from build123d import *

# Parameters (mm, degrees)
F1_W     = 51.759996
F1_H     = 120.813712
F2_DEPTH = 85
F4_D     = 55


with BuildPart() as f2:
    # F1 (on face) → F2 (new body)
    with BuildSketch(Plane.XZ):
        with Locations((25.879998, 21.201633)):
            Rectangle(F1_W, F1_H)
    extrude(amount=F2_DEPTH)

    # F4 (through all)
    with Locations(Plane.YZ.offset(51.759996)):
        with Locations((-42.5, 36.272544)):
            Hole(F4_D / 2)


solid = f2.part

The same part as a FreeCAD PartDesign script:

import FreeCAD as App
import Part
import Sketcher
from FreeCAD import Vector


def add_polygon(sketch, points):
    """Adds a closed chain of lines whose ends are joined by coincident constraints."""
    first, n = sketch.GeometryCount, len(points)
    for a, b in zip(points, points[1:] + points[:1]):
        sketch.addGeometry(Part.LineSegment(App.Vector(*a, 0), App.Vector(*b, 0)), False)
    for i in range(n):
        sketch.addConstraint(Sketcher.Constraint("Coincident", first + i, 2, first + (i + 1) % n, 1))

doc = App.newDocument("Part")
body = doc.addObject("PartDesign::Body", "Body")

# Sketch on XZ plane
sketch1 = body.newObject("Sketcher::SketchObject", "Sketch")
sketch1.AttachmentSupport = (doc.getObject("XZ_Plane"), [""])
sketch1.MapMode = "FlatFace"
add_polygon(sketch1, [(0, 82), (0, -39), (52, -39), (52, 82)])  # lines 0-3
sketch1.addConstraint([
    Sketcher.Constraint("Vertical", 0),
    Sketcher.Constraint("Horizontal", 1),
    Sketcher.Constraint("Vertical", 2),
    Sketcher.Constraint("Horizontal", 3),
    Sketcher.Constraint("PointOnObject", 0, 2, -2),
    Sketcher.Constraint("DistanceX", 1, 1, 1, 2, 51.759996),
    Sketcher.Constraint("DistanceY", 0, 2, 0, 1, 120.813712),
    Sketcher.Constraint("DistanceY", -1, 1, 2, 2, 81.608489),
])
pad1 = body.newObject("PartDesign::Pad", "Pad")
pad1.Profile = sketch1
pad1.Length = 85

# Sketch on YZ plane
sketch2 = body.newObject("Sketcher::SketchObject", "Sketch001")
sketch2.AttachmentSupport = (doc.getObject("YZ_Plane"), [""])
sketch2.MapMode = "FlatFace"
sketch2.AttachmentOffset = App.Placement(Vector(0, 0, 51.759996), App.Rotation())
sketch2.addGeometry(Part.Circle(Vector(-42, 36, 0), Vector(0, 0, 1), 28), False)
sketch2.addConstraint([
    Sketcher.Constraint("Diameter", 0, 55.0),
    Sketcher.Constraint("DistanceX", 0, 3, -1, 1, 42.5),
    Sketcher.Constraint("DistanceY", -1, 1, 0, 3, 36.272544),
])
doc.recompute()
hole = body.newObject("PartDesign::Hole", "Hole")
hole.Profile = sketch2
hole.ThreadType = "None"
hole.Diameter = 55
hole.DepthType = "ThroughAll"

doc.recompute()
